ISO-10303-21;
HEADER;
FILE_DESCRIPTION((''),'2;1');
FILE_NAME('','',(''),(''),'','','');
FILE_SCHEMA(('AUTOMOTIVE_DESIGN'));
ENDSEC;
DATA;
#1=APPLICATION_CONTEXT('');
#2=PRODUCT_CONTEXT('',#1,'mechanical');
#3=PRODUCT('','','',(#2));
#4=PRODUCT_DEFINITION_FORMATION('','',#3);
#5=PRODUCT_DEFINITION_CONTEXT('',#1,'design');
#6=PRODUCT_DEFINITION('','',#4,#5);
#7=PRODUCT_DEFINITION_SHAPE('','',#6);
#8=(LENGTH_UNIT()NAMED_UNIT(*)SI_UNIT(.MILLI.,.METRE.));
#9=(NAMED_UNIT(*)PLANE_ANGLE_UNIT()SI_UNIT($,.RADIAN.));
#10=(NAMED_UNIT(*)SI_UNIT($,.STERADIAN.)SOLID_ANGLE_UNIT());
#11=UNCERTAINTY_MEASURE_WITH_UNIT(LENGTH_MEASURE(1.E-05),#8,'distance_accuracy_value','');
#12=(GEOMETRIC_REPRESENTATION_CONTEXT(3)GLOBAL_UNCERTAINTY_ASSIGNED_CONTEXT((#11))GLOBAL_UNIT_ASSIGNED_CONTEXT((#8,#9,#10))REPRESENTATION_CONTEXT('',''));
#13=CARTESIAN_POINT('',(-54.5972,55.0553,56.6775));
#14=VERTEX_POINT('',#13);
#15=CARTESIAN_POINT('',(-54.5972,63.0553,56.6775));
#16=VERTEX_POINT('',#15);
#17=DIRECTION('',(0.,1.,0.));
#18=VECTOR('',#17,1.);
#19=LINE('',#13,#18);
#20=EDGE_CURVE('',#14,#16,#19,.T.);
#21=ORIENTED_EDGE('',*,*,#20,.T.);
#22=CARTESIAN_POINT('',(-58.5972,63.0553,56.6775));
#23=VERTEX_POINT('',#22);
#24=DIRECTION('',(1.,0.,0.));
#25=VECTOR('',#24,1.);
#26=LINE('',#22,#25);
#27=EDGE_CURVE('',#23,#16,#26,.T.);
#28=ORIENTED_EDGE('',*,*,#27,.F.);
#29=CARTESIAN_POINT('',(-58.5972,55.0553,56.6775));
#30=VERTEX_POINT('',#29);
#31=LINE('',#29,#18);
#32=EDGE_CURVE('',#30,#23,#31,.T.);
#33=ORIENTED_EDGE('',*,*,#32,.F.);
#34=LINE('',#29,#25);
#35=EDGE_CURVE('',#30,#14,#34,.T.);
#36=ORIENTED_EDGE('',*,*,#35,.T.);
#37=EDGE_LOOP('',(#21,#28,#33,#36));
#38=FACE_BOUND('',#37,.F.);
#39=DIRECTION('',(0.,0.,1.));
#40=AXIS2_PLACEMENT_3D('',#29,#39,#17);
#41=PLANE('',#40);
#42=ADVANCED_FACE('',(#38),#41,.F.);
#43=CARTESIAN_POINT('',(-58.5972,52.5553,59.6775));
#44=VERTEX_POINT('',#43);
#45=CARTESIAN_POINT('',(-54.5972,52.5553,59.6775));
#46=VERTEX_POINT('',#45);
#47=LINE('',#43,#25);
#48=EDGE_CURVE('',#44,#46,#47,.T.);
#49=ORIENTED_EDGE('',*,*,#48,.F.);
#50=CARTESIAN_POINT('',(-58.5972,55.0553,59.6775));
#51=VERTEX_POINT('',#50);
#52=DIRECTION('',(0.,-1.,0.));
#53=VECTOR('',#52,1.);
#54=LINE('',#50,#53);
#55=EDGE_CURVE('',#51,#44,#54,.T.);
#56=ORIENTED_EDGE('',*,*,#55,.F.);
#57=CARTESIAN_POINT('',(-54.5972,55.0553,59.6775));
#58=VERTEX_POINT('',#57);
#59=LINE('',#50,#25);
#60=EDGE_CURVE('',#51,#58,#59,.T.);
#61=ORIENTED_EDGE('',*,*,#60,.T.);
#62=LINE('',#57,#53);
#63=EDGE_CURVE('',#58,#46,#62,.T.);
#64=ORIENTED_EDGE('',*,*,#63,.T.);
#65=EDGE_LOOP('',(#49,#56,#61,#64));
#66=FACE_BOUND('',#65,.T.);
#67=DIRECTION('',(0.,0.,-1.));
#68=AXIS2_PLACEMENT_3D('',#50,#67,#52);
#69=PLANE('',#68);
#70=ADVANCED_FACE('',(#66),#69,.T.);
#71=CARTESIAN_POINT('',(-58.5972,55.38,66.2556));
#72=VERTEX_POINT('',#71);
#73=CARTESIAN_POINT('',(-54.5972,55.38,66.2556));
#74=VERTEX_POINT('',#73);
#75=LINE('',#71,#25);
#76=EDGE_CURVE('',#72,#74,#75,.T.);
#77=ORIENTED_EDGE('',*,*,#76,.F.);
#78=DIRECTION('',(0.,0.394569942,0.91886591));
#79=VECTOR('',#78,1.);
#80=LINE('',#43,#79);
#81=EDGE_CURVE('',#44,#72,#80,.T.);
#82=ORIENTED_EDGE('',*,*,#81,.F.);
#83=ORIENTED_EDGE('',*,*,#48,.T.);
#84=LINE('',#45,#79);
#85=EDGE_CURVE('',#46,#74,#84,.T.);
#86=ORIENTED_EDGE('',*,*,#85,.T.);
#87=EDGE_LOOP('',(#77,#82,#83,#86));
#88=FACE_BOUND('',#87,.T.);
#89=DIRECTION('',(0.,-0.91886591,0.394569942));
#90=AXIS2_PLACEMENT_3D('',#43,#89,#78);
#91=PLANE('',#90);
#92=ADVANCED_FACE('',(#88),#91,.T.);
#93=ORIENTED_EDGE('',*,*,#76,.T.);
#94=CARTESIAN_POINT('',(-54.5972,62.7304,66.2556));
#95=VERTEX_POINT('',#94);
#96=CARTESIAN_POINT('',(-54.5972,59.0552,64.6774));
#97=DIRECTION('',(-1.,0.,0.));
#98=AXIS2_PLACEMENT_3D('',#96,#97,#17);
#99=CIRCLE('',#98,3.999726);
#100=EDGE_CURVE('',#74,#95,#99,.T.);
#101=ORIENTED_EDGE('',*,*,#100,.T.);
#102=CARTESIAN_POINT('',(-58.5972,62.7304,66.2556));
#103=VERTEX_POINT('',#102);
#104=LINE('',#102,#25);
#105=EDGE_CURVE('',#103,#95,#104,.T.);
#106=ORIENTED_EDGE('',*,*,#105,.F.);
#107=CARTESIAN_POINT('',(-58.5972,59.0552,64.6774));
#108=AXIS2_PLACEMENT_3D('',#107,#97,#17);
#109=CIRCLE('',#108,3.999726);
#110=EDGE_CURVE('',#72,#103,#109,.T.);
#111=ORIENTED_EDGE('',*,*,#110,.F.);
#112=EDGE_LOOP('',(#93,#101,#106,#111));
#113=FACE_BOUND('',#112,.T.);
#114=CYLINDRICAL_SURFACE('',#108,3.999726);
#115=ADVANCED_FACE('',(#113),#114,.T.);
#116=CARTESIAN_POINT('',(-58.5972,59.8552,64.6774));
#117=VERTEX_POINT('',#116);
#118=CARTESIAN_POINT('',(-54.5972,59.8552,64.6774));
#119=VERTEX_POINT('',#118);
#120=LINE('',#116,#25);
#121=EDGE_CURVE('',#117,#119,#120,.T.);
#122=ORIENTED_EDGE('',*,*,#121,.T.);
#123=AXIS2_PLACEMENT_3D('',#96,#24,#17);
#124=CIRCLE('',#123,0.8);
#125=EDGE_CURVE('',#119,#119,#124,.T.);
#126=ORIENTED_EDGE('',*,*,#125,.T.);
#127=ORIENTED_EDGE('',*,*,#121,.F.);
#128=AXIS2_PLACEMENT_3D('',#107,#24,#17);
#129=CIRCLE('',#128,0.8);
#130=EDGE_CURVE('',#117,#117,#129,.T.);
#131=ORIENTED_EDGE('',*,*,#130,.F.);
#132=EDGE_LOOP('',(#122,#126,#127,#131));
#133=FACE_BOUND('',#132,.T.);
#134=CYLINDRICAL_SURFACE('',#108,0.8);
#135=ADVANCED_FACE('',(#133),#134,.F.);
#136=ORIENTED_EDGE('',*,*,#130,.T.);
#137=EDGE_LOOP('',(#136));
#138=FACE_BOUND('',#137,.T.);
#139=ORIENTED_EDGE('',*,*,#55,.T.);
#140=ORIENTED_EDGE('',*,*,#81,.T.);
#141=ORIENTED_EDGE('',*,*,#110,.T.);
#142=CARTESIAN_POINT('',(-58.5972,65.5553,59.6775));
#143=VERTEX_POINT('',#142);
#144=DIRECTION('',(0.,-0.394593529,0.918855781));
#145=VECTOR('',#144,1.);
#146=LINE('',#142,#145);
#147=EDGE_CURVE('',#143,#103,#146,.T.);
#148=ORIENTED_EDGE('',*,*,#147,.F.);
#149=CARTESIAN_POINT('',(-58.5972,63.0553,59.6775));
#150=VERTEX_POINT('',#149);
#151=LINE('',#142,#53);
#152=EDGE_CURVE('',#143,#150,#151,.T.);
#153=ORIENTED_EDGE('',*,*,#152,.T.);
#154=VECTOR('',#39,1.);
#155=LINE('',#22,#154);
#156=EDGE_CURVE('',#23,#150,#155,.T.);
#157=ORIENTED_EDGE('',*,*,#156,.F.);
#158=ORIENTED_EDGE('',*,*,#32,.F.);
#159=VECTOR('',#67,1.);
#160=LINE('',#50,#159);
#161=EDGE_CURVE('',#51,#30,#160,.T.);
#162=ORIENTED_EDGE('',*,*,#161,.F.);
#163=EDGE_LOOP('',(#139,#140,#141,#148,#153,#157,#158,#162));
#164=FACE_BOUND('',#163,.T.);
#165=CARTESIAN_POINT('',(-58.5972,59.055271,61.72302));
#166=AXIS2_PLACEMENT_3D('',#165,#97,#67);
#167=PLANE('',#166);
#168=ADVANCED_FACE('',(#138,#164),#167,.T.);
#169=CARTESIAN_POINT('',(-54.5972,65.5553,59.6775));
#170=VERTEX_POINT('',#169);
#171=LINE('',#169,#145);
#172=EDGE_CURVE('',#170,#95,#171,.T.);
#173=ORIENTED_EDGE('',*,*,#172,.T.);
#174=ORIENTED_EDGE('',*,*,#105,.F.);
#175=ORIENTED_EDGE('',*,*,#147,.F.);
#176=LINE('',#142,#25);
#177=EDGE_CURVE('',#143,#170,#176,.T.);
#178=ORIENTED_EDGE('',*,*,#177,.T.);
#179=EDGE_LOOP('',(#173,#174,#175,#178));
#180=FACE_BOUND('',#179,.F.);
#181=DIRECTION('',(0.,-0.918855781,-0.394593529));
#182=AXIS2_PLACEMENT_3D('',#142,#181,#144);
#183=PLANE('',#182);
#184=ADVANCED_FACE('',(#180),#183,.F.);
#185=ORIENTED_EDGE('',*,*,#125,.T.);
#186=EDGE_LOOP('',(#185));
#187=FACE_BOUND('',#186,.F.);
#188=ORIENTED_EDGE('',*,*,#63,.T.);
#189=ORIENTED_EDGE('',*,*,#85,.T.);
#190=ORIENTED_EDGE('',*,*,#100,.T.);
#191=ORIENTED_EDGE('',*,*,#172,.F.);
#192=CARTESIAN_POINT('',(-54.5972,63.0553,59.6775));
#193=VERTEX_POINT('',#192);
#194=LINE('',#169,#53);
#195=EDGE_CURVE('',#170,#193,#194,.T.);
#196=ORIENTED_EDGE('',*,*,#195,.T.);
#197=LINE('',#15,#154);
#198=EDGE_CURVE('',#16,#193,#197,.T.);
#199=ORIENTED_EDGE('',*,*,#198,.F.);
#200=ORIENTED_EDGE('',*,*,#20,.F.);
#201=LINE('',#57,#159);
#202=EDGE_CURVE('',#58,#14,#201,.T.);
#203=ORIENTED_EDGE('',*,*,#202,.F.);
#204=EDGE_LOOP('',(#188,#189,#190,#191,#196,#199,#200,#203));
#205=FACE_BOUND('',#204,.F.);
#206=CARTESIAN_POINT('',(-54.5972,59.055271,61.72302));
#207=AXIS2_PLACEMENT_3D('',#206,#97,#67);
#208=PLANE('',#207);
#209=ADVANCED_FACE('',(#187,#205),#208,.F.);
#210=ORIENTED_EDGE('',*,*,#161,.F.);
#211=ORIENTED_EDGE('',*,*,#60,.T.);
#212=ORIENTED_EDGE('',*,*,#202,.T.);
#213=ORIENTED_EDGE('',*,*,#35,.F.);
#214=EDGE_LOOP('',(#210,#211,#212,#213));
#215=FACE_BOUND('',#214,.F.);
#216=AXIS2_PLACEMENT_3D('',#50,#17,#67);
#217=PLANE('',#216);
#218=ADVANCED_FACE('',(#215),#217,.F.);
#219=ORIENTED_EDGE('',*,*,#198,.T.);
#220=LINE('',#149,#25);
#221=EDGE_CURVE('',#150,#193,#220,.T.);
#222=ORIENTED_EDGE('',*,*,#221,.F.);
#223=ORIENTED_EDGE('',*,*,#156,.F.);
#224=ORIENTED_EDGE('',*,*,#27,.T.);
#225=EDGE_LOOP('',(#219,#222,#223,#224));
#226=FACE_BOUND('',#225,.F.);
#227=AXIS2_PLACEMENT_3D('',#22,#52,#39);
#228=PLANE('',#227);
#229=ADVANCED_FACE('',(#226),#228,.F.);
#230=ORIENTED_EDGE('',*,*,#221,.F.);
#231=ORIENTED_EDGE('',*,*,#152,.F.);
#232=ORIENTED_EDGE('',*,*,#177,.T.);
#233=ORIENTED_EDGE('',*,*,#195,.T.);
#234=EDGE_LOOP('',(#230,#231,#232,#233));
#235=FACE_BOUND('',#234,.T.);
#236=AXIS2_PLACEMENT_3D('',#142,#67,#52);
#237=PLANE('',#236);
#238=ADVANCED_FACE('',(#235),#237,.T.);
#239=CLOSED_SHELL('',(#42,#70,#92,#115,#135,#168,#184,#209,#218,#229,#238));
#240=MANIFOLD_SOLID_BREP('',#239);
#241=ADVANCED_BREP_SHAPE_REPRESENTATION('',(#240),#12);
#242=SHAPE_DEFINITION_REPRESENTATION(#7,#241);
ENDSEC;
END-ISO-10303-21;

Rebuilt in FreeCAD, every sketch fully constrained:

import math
import FreeCAD as App
import Part
import Sketcher
Q = App.Units.Quantity

doc = App.newDocument("Part")
body = doc.addObject("PartDesign::Body", "Body")

# Sketch on YZ plane
sketch1 = body.newObject("Sketcher::SketchObject", "Sketch")
sketch1.AttachmentSupport = (doc.getObject("YZ_Plane"), [""])
sketch1.MapMode = "FlatFace"
sketch1.AttachmentOffset = App.Placement(App.Vector(0, 0, -58.5972), App.Rotation())
sketch1.addGeometry([
    Part.LineSegment(App.Vector(52.6, 59.7, 0), App.Vector(55.1, 59.7, 0)),  # 0
    Part.LineSegment(App.Vector(55.1, 59.7, 0), App.Vector(55.1, 56.7, 0)),  # 1
    Part.LineSegment(App.Vector(55.1, 56.7, 0), App.Vector(63.1, 56.7, 0)),  # 2
    Part.LineSegment(App.Vector(63.1, 56.7, 0), App.Vector(63.1, 59.7, 0)),  # 3
    Part.LineSegment(App.Vector(63.1, 59.7, 0), App.Vector(65.6, 59.7, 0)),  # 4
    Part.LineSegment(App.Vector(65.6, 59.7, 0), App.Vector(62.7, 66.3, 0)),  # 5
    Part.ArcOfCircle(Part.Circle(App.Vector(59.1, 64.7, 0), App.Vector(0, 0, 1), 4), math.radians(23), math.radians(157)),  # 6
    Part.LineSegment(App.Vector(55.4, 66.3, 0), App.Vector(52.6, 59.7, 0)),  # 7
    Part.Circle(App.Vector(59.1, 64.7, 0), App.Vector(0, 0, 1), 0.8),  # 8
], False)
sketch1.addConstraint([
    Sketcher.Constraint("Coincident", 0, 2, 1, 1),
    Sketcher.Constraint("Coincident", 1, 2, 2, 1),
    Sketcher.Constraint("Coincident", 2, 2, 3, 1),
    Sketcher.Constraint("Coincident", 3, 2, 4, 1),
    Sketcher.Constraint("Coincident", 4, 2, 5, 1),
    Sketcher.Constraint("Tangent", 5, 2, 6, 1),
    Sketcher.Constraint("Tangent", 6, 2, 7, 1),
    Sketcher.Constraint("Coincident", 7, 2, 0, 1),
    Sketcher.Constraint("Horizontal", 0),
    Sketcher.Constraint("Vertical", 1),
    Sketcher.Constraint("Horizontal", 2),
    Sketcher.Constraint("Vertical", 3),
    Sketcher.Constraint("Horizontal", 4),
    Sketcher.Constraint("Coincident", 8, 3, 6, 3),
    Sketcher.Constraint("Horizontal", 0, 2, 3, 2),
    Sketcher.Constraint("Horizontal", 5, 2, 6, 2),
    Sketcher.Constraint("Equal", 0, 4),
    Sketcher.Constraint("Diameter", 8, 1.6),
    Sketcher.Constraint("DistanceX", 2, 1, 2, 2, 8.0),
    Sketcher.Constraint("DistanceY", 1, 2, 1, 1, 3.0),
    Sketcher.Constraint("DistanceX", 0, 1, 0, 2, 2.5),
    Sketcher.Constraint("DistanceY", 0, 2, 6, 3, 5.0),
    Sketcher.Constraint("Angle", 5, Q("113.2406 deg")),
    Sketcher.Constraint("DistanceX", -1, 1, 6, 2, 55.38),
    Sketcher.Constraint("DistanceY", -1, 1, 6, 3, 64.6774),
])
pad1 = body.newObject("PartDesign::Pad", "Pad")
pad1.Profile = sketch1
pad1.Length = 4

doc.recompute()
